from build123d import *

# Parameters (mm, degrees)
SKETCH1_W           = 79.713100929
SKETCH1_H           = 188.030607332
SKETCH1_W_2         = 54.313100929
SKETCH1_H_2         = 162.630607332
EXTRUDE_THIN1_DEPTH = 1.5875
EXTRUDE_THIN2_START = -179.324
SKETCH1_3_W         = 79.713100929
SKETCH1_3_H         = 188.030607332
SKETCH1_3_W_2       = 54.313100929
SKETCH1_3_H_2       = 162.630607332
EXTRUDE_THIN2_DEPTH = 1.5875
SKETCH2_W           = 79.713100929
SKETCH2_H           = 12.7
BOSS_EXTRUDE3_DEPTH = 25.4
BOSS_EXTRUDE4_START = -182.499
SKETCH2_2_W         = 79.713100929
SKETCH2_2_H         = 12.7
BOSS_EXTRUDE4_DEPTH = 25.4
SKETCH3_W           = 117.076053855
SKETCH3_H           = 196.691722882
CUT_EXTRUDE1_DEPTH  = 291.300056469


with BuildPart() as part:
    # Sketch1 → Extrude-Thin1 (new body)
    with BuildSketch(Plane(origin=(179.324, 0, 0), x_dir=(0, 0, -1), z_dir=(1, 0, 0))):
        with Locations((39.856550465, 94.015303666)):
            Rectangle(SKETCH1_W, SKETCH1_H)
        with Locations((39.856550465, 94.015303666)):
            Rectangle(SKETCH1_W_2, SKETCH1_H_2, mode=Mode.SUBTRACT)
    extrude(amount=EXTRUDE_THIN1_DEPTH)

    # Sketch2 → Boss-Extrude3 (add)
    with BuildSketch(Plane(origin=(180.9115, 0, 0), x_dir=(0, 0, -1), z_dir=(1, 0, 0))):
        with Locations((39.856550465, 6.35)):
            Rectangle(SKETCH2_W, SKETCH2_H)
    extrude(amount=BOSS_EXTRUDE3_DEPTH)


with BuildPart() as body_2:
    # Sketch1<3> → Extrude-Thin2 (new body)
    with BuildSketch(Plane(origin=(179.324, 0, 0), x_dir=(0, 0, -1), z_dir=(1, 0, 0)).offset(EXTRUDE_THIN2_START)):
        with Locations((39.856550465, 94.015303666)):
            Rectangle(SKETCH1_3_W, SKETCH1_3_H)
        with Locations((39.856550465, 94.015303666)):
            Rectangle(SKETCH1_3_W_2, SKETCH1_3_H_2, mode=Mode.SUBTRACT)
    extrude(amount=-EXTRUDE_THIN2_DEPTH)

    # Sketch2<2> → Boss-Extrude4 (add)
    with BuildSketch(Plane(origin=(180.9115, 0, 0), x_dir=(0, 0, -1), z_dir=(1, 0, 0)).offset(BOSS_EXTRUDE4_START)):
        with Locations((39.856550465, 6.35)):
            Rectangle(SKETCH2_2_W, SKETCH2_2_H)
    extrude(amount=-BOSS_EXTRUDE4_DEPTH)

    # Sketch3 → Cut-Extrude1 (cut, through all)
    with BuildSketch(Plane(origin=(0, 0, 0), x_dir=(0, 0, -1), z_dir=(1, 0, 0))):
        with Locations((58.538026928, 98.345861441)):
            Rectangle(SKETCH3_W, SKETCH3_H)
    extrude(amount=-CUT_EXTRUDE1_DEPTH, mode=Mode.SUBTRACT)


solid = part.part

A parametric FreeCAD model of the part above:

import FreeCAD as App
import Part
import Sketcher
from FreeCAD import Vector
Q = App.Units.Quantity


def add_polygon(sketch, points):
    """Adds a closed chain of lines whose ends are joined by coincident constraints."""
    first, n = sketch.GeometryCount, len(points)
    for a, b in zip(points, points[1:] + points[:1]):
        sketch.addGeometry(Part.LineSegment(App.Vector(*a, 0), App.Vector(*b, 0)), False)
    for i in range(n):
        sketch.addConstraint(Sketcher.Constraint("Coincident", first + i, 2, first + (i + 1) % n, 1))

doc = App.newDocument("Part")
body = doc.addObject("PartDesign::Body", "Body")

# Sketch on YZ plane
sketch1 = body.newObject("Sketcher::SketchObject", "Sketch")
sketch1.AttachmentSupport = (doc.getObject("YZ_Plane"), [""])
sketch1.MapMode = "FlatFace"
sketch1.AttachmentOffset = App.Placement(Vector(0, 0, 7.06 * 25.4), App.Rotation())
add_polygon(sketch1, [(188.030607, 0), (0, 0), (0, -79.713101), (188.030607, -79.713101)])  # lines 0-3
add_polygon(sketch1, [(12.7, -67.013101), (12.7, -12.7), (175.330607, -12.7), (175.330607, -67.013101)])  # lines 4-7
sketch1.addConstraint(Sketcher.Constraint("Horizontal", 0))
sketch1.addConstraint(Sketcher.Constraint("Vertical", 1))
sketch1.addConstraint(Sketcher.Constraint("Horizontal", 2))
sketch1.addConstraint(Sketcher.Constraint("Vertical", 3))
sketch1.addConstraint(Sketcher.Constraint("Vertical", 4))
sketch1.addConstraint(Sketcher.Constraint("Horizontal", 5))
sketch1.addConstraint(Sketcher.Constraint("Vertical", 6))
sketch1.addConstraint(Sketcher.Constraint("Horizontal", 7))
sketch1.addConstraint(Sketcher.Constraint("Coincident", 0, 2, -1, 1))
sketch1.addConstraint(Sketcher.Constraint("DistanceX", -1, 1, 4, 2, Q("0.5 in")))
sketch1.addConstraint(Sketcher.Constraint("DistanceY", 4, 2, -1, 1, Q("0.5 in")))
sketch1.addConstraint(Sketcher.Constraint("DistanceX", 5, 2, 3, 2, Q("0.5 in")))
sketch1.addConstraint(Sketcher.Constraint("DistanceY", 2, 2, 6, 2, Q("0.5 in")))
sketch1.addConstraint(Sketcher.Constraint("DistanceY", 1, 2, 1, 1, Q("79.713101 mm")))
sketch1.addConstraint(Sketcher.Constraint("DistanceX", 0, 2, 0, 1, Q("188.030607 mm")))
pad1 = body.newObject("PartDesign::Pad", "Pad")
pad1.Profile = sketch1
pad1.Length = Q("0.0625 in")

# Sketch on YZ plane
sketch2 = body.newObject("Sketcher::SketchObject", "Sketch001")
sketch2.AttachmentSupport = (doc.getObject("YZ_Plane"), [""])
sketch2.MapMode = "FlatFace"
sketch2.AttachmentOffset = App.Placement(Vector(0, 0, 7.1225 * 25.4), App.Rotation())
add_polygon(sketch2, [(12.7, 0), (0, 0), (0, -79.713101), (12.7, -79.713101)])  # lines 0-3
sketch2.addConstraint(Sketcher.Constraint("Horizontal", 0))
sketch2.addConstraint(Sketcher.Constraint("Vertical", 1))
sketch2.addConstraint(Sketcher.Constraint("Horizontal", 2))
sketch2.addConstraint(Sketcher.Constraint("Vertical", 3))
sketch2.addConstraint(Sketcher.Constraint("Coincident", 0, 2, -1, 1))
sketch2.addConstraint(Sketcher.Constraint("DistanceX", 0, 2, 0, 1, Q("0.5 in")))
sketch2.addConstraint(Sketcher.Constraint("DistanceY", 1, 2, 1, 1, Q("79.713101 mm")))
pad2 = body.newObject("PartDesign::Pad", "Pad001")
pad2.Profile = sketch2
pad2.Length = Q("1 in")
body2 = doc.addObject("PartDesign::Body", "Body001")

# Sketch on YZ plane
sketch3 = body2.newObject("Sketcher::SketchObject", "Sketch002")
sketch3.AttachmentSupport = (doc.getObject("YZ_Plane001"), [""])
sketch3.MapMode = "FlatFace"
add_polygon(sketch3, [(188.030607, 0), (0, 0), (0, -79.713101), (188.030607, -79.713101)])  # lines 0-3
add_polygon(sketch3, [(12.7, -67.013101), (12.7, -12.7), (175.330607, -12.7), (175.330607, -67.013101)])  # lines 4-7
sketch3.addConstraint(Sketcher.Constraint("Horizontal", 0))
sketch3.addConstraint(Sketcher.Constraint("Vertical", 1))
sketch3.addConstraint(Sketcher.Constraint("Horizontal", 2))
sketch3.addConstraint(Sketcher.Constraint("Vertical", 3))
sketch3.addConstraint(Sketcher.Constraint("Vertical", 4))
sketch3.addConstraint(Sketcher.Constraint("Horizontal", 5))
sketch3.addConstraint(Sketcher.Constraint("Vertical", 6))
sketch3.addConstraint(Sketcher.Constraint("Horizontal", 7))
sketch3.addConstraint(Sketcher.Constraint("Coincident", 0, 2, -1, 1))
sketch3.addConstraint(Sketcher.Constraint("DistanceX", -1, 1, 4, 2, Q("0.5 in")))
sketch3.addConstraint(Sketcher.Constraint("DistanceY", 4, 2, -1, 1, Q("0.5 in")))
sketch3.addConstraint(Sketcher.Constraint("DistanceX", 5, 2, 3, 2, Q("0.5 in")))
sketch3.addConstraint(Sketcher.Constraint("DistanceY", 2, 2, 6, 2, Q("0.5 in")))
sketch3.addConstraint(Sketcher.Constraint("DistanceY", 1, 2, 1, 1, Q("79.713101 mm")))
sketch3.addConstraint(Sketcher.Constraint("DistanceX", 0, 2, 0, 1, Q("188.030607 mm")))
pad3 = body2.newObject("PartDesign::Pad", "Pad002")
pad3.Profile = sketch3
pad3.Length = Q("0.0625 in")
pad3.Reversed = True

# Sketch on YZ plane
sketch4 = body2.newObject("Sketcher::SketchObject", "Sketch003")
sketch4.AttachmentSupport = (doc.getObject("YZ_Plane001"), [""])
sketch4.MapMode = "FlatFace"
sketch4.AttachmentOffset = App.Placement(Vector(0, 0, -0.0625 * 25.4), App.Rotation())
add_polygon(sketch4, [(12.7, 0), (0, 0), (0, -79.713101), (12.7, -79.713101)])  # lines 0-3
sketch4.addConstraint(Sketcher.Constraint("Horizontal", 0))
sketch4.addConstraint(Sketcher.Constraint("Vertical", 1))
sketch4.addConstraint(Sketcher.Constraint("Horizontal", 2))
sketch4.addConstraint(Sketcher.Constraint("Vertical", 3))
sketch4.addConstraint(Sketcher.Constraint("Coincident", 0, 2, -1, 1))
sketch4.addConstraint(Sketcher.Constraint("DistanceX", 0, 2, 0, 1, Q("0.5 in")))
sketch4.addConstraint(Sketcher.Constraint("DistanceY", 1, 2, 1, 1, Q("79.713101 mm")))
pad4 = body2.newObject("PartDesign::Pad", "Pad003")
pad4.Profile = sketch4
pad4.Length = Q("1 in")
pad4.Reversed = True

# Sketch on YZ plane
sketch5 = body2.newObject("Sketcher::SketchObject", "Sketch004")
sketch5.AttachmentSupport = (doc.getObject("YZ_Plane001"), [""])
sketch5.MapMode = "FlatFace"
add_polygon(sketch5, [(196.691723, 0), (0, 0), (0, -117.076054), (196.691723, -117.076054)])  # lines 0-3
sketch5.addConstraint(Sketcher.Constraint("Horizontal", 0))
sketch5.addConstraint(Sketcher.Constraint("Vertical", 1))
sketch5.addConstraint(Sketcher.Constraint("Horizontal", 2))
sketch5.addConstraint(Sketcher.Constraint("Vertical", 3))
sketch5.addConstraint(Sketcher.Constraint("Coincident", 0, 2, -1, 1))
sketch5.addConstraint(Sketcher.Constraint("DistanceX", 0, 2, 0, 1, Q("196.691723 mm")))
sketch5.addConstraint(Sketcher.Constraint("DistanceY", 1, 2, 1, 1, Q("117.076054 mm")))
pocket1 = body2.newObject("PartDesign::Pocket", "Pocket")
pocket1.Profile = sketch5
pocket1.Type = "ThroughAll"

doc.recompute()
